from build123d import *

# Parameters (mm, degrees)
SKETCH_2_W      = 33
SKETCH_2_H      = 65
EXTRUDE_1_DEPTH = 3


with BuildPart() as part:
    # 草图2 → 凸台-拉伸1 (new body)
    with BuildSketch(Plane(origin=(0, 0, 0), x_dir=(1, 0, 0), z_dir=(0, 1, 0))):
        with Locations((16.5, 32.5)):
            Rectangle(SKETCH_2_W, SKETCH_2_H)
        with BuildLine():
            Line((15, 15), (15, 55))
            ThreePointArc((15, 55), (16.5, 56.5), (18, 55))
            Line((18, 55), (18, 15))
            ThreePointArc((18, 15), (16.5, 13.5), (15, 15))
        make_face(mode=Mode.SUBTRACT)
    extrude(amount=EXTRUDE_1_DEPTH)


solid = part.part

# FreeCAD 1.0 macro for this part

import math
import FreeCAD as App
import Part
import Sketcher

V = App.Vector


def add_polygon(sketch, points):
    """Adds a closed chain of lines whose ends are joined by coincident constraints."""
    first, n = sketch.GeometryCount, len(points)
    for a, b in zip(points, points[1:] + points[:1]):
        sketch.addGeometry(Part.LineSegment(App.Vector(*a, 0), App.Vector(*b, 0)), False)
    for i in range(n):
        sketch.addConstraint(Sketcher.Constraint("Coincident", first + i, 2, first + (i + 1) % n, 1))

doc = App.newDocument("Part")
body = doc.addObject("PartDesign::Body", "Body")

# Sketch on XZ plane
sketch1 = doc.addObject("Sketcher::SketchObject", "Sketch")
body.addObject(sketch1)
sketch1.AttachmentSupport = (doc.XZ_Plane, [""])
sketch1.MapMode = "FlatFace"
add_polygon(sketch1, [(0, -65), (0, 0), (33, 0), (33, -65)])  # lines 0-3
sketch1.addGeometry(Part.ArcOfCircle(Part.Circle(V(16.5, -15, 0), V(0, 0, 1), 1.5), math.radians(0), math.radians(180)), False)  # 4
sketch1.addGeometry(Part.LineSegment(V(15, -15, 0), V(15, -55, 0)), False)  # 5
sketch1.addGeometry(Part.ArcOfCircle(Part.Circle(V(16.5, -55, 0), V(0, 0, 1), 1.5), math.radians(180), math.radians(360)), False)  # 6
sketch1.addGeometry(Part.LineSegment(V(18, -55, 0), V(18, -15, 0)), False)  # 7
sketch1.addConstraint([
    Sketcher.Constraint("Tangent", 4, 2, 5, 1),
    Sketcher.Constraint("Tangent", 5, 2, 6, 1),
    Sketcher.Constraint("Tangent", 6, 2, 7, 1),
    Sketcher.Constraint("Tangent", 7, 2, 4, 1),
    Sketcher.Constraint("Vertical", 0),
    Sketcher.Constraint("Horizontal", 1),
    Sketcher.Constraint("Vertical", 2),
    Sketcher.Constraint("Horizontal", 3),
    Sketcher.Constraint("Vertical", 5),
    Sketcher.Constraint("Vertical", 7),
    Sketcher.Constraint("Coincident", 0, 2, -1, 1),
    Sketcher.Constraint("Radius", 4, 1.5),
    Sketcher.Constraint("DistanceX", 1, 1, 1, 2, 33.0),
    Sketcher.Constraint("DistanceY", 0, 1, 0, 2, 65.0),
    Sketcher.Constraint("DistanceY", 5, 2, 5, 1, 40.0),
    Sketcher.Constraint("DistanceY", 4, 3, -1, 1, 15.0),
    Sketcher.Constraint("DistanceX", -1, 1, 4, 2, 15.0),
])
pad1 = doc.addObject("PartDesign::Pad", "Pad")
body.addObject(pad1)
pad1.Profile = sketch1
pad1.Length = 3
pad1.Reversed = True

doc.recompute()
